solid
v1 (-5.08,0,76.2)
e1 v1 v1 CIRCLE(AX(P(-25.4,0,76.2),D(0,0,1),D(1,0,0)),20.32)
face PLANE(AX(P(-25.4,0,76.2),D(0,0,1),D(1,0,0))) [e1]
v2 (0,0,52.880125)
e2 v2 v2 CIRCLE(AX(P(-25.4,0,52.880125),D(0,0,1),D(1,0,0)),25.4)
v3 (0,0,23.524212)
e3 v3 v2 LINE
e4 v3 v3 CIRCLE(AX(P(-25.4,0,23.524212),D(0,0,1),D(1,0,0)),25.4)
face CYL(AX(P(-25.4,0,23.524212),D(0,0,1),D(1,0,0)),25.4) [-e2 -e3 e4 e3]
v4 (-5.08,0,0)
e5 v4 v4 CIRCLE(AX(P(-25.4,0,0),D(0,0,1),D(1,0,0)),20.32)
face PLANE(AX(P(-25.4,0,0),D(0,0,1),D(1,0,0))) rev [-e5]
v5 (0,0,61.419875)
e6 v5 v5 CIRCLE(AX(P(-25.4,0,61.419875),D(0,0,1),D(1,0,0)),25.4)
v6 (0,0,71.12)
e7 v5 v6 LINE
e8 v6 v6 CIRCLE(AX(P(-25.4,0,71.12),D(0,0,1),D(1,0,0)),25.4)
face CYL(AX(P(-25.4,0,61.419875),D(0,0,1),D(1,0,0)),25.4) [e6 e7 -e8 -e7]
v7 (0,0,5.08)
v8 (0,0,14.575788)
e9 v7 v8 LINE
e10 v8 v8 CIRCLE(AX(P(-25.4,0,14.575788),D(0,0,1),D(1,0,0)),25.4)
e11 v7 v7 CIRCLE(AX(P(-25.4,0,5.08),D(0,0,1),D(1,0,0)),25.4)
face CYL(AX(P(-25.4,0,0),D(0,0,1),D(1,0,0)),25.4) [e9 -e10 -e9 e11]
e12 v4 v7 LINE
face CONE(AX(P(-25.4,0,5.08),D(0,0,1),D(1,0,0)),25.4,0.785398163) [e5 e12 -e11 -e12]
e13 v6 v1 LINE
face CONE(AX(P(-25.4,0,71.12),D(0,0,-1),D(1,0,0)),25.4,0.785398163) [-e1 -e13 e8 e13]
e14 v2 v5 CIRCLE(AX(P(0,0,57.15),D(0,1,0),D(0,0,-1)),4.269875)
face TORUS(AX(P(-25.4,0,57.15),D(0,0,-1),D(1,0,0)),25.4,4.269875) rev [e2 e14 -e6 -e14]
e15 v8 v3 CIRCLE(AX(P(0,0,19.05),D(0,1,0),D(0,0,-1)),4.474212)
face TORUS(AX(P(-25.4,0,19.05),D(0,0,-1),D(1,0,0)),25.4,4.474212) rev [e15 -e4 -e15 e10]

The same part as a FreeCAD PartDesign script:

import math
import FreeCAD as App
import Part
import Sketcher

V = App.Vector
Q = App.Units.Quantity


def edges_at(feature, points):
    """Names of the edges that pass closest to the given points."""
    edges = feature.Shape.Edges
    near = lambda p: min(range(len(edges)), key=lambda i: edges[i].distToShape(Part.Vertex(*p))[0])
    return sorted({f"Edge{near(p) + 1}" for p in points})

doc = App.newDocument("Part")
params = doc.addObject("Spreadsheet::Sheet", "Params")
for row, (alias, value) in enumerate([
    ("sketch1_width", "1 in"),
    ("sketch1_height", "3 in"),
    ("revolution_angle", "360 deg"),
    ("chamfer_size", "0.2 in"),
], start=1):
    params.set(f"A{row}", alias)
    params.set(f"B{row}", "=" + value)
    params.setAlias(f"B{row}", alias)

body = doc.addObject("PartDesign::Body", "Body")

# Sketch on XZ plane
sketch1 = body.newObject("Sketcher::SketchObject", "Sketch")
sketch1.AttachmentSupport = (doc.getObject("XZ_Plane"), [""])
sketch1.MapMode = "FlatFace"
sketch1.addGeometry([
    Part.LineSegment(V(-25.4, 0, 0), V(0, 0, 0)),  # 0
    Part.LineSegment(V(0, 0, 0), V(0, 14.6, 0)),  # 1
    Part.ArcOfCircle(Part.Circle(V(0, 19.1, 0), V(0, 0, 1), 4.5), math.radians(90), math.radians(270)),  # 2
    Part.LineSegment(V(0, 23.5, 0), V(0, 52.9, 0)),  # 3
    Part.ArcOfCircle(Part.Circle(V(0, 57.1, 0), V(0, 0, 1), 4.3), math.radians(90), math.radians(270)),  # 4
    Part.LineSegment(V(0, 61.4, 0), V(0, 76.2, 0)),  # 5
    Part.LineSegment(V(0, 76.2, 0), V(-25.4, 76.2, 0)),  # 6
    Part.LineSegment(V(-25.4, 76.2, 0), V(-25.4, 0, 0)),  # 7
], False)
sketch1.addGeometry(Part.LineSegment(V(-25.4, 0, 0), V(-25.4, 76.2, 0)), True)  # axis
sketch1.addConstraint([
    Sketcher.Constraint("Coincident", 0, 2, 1, 1),
    Sketcher.Constraint("Coincident", 1, 2, 2, 2),
    Sketcher.Constraint("Coincident", 2, 1, 3, 1),
    Sketcher.Constraint("Coincident", 3, 2, 4, 2),
    Sketcher.Constraint("Coincident", 4, 1, 5, 1),
    Sketcher.Constraint("Coincident", 5, 2, 6, 1),
    Sketcher.Constraint("Coincident", 6, 2, 7, 1),
    Sketcher.Constraint("Coincident", 7, 2, 0, 1),
    Sketcher.Constraint("Horizontal", 0),
    Sketcher.Constraint("Vertical", 1),
    Sketcher.Constraint("Vertical", 3),
    Sketcher.Constraint("Vertical", 5),
    Sketcher.Constraint("Horizontal", 6),
    Sketcher.Constraint("Vertical", 7),
    Sketcher.Constraint("Vertical", 8),
    Sketcher.Constraint("Coincident", 0, 2, -1, 1),
    Sketcher.Constraint("Coincident", 8, 1, 7, 2),
    Sketcher.Constraint("PointOnObject", 2, 3, -2),
    Sketcher.Constraint("PointOnObject", 4, 3, -2),
    Sketcher.Constraint("PointOnObject", 2, 1, -2),
    Sketcher.Constraint("PointOnObject", 4, 1, -2),
    Sketcher.Constraint("Horizontal", 5, 2, 8, 2),
    Sketcher.Constraint("DistanceX", 0, 1, 0, 2, Q("1 in")),
    Sketcher.Constraint("DistanceY", 7, 2, 7, 1, Q("3 in")),
    Sketcher.Constraint("DistanceY", 2, 3, 4, 3, Q("1.5 in")),
    Sketcher.Constraint("DistanceY", -1, 1, 2, 3, Q("0.75 in")),
    Sketcher.Constraint("Radius", 2, Q("4.474212 mm")),
    Sketcher.Constraint("Radius", 4, Q("4.269875 mm")),
])
sketch1.setExpression("Constraints[22]", "Params.sketch1_width")
sketch1.setExpression("Constraints[23]", "Params.sketch1_height")
revolution = body.newObject("PartDesign::Revolution", "Revolution")
revolution.Profile = sketch1
revolution.ReferenceAxis = (sketch1, ["Axis0"])
revolution.setExpression("Angle", "Params.revolution_angle")
doc.recompute()

chamfer = body.newObject("PartDesign::Chamfer", "Chamfer")
chamfer.Base = (revolution, edges_at(revolution, [(-50.8, 0, 0), (-50.8, 0, 76.2)]))
chamfer.setExpression("Size", "Params.chamfer_size")

doc.recompute()
